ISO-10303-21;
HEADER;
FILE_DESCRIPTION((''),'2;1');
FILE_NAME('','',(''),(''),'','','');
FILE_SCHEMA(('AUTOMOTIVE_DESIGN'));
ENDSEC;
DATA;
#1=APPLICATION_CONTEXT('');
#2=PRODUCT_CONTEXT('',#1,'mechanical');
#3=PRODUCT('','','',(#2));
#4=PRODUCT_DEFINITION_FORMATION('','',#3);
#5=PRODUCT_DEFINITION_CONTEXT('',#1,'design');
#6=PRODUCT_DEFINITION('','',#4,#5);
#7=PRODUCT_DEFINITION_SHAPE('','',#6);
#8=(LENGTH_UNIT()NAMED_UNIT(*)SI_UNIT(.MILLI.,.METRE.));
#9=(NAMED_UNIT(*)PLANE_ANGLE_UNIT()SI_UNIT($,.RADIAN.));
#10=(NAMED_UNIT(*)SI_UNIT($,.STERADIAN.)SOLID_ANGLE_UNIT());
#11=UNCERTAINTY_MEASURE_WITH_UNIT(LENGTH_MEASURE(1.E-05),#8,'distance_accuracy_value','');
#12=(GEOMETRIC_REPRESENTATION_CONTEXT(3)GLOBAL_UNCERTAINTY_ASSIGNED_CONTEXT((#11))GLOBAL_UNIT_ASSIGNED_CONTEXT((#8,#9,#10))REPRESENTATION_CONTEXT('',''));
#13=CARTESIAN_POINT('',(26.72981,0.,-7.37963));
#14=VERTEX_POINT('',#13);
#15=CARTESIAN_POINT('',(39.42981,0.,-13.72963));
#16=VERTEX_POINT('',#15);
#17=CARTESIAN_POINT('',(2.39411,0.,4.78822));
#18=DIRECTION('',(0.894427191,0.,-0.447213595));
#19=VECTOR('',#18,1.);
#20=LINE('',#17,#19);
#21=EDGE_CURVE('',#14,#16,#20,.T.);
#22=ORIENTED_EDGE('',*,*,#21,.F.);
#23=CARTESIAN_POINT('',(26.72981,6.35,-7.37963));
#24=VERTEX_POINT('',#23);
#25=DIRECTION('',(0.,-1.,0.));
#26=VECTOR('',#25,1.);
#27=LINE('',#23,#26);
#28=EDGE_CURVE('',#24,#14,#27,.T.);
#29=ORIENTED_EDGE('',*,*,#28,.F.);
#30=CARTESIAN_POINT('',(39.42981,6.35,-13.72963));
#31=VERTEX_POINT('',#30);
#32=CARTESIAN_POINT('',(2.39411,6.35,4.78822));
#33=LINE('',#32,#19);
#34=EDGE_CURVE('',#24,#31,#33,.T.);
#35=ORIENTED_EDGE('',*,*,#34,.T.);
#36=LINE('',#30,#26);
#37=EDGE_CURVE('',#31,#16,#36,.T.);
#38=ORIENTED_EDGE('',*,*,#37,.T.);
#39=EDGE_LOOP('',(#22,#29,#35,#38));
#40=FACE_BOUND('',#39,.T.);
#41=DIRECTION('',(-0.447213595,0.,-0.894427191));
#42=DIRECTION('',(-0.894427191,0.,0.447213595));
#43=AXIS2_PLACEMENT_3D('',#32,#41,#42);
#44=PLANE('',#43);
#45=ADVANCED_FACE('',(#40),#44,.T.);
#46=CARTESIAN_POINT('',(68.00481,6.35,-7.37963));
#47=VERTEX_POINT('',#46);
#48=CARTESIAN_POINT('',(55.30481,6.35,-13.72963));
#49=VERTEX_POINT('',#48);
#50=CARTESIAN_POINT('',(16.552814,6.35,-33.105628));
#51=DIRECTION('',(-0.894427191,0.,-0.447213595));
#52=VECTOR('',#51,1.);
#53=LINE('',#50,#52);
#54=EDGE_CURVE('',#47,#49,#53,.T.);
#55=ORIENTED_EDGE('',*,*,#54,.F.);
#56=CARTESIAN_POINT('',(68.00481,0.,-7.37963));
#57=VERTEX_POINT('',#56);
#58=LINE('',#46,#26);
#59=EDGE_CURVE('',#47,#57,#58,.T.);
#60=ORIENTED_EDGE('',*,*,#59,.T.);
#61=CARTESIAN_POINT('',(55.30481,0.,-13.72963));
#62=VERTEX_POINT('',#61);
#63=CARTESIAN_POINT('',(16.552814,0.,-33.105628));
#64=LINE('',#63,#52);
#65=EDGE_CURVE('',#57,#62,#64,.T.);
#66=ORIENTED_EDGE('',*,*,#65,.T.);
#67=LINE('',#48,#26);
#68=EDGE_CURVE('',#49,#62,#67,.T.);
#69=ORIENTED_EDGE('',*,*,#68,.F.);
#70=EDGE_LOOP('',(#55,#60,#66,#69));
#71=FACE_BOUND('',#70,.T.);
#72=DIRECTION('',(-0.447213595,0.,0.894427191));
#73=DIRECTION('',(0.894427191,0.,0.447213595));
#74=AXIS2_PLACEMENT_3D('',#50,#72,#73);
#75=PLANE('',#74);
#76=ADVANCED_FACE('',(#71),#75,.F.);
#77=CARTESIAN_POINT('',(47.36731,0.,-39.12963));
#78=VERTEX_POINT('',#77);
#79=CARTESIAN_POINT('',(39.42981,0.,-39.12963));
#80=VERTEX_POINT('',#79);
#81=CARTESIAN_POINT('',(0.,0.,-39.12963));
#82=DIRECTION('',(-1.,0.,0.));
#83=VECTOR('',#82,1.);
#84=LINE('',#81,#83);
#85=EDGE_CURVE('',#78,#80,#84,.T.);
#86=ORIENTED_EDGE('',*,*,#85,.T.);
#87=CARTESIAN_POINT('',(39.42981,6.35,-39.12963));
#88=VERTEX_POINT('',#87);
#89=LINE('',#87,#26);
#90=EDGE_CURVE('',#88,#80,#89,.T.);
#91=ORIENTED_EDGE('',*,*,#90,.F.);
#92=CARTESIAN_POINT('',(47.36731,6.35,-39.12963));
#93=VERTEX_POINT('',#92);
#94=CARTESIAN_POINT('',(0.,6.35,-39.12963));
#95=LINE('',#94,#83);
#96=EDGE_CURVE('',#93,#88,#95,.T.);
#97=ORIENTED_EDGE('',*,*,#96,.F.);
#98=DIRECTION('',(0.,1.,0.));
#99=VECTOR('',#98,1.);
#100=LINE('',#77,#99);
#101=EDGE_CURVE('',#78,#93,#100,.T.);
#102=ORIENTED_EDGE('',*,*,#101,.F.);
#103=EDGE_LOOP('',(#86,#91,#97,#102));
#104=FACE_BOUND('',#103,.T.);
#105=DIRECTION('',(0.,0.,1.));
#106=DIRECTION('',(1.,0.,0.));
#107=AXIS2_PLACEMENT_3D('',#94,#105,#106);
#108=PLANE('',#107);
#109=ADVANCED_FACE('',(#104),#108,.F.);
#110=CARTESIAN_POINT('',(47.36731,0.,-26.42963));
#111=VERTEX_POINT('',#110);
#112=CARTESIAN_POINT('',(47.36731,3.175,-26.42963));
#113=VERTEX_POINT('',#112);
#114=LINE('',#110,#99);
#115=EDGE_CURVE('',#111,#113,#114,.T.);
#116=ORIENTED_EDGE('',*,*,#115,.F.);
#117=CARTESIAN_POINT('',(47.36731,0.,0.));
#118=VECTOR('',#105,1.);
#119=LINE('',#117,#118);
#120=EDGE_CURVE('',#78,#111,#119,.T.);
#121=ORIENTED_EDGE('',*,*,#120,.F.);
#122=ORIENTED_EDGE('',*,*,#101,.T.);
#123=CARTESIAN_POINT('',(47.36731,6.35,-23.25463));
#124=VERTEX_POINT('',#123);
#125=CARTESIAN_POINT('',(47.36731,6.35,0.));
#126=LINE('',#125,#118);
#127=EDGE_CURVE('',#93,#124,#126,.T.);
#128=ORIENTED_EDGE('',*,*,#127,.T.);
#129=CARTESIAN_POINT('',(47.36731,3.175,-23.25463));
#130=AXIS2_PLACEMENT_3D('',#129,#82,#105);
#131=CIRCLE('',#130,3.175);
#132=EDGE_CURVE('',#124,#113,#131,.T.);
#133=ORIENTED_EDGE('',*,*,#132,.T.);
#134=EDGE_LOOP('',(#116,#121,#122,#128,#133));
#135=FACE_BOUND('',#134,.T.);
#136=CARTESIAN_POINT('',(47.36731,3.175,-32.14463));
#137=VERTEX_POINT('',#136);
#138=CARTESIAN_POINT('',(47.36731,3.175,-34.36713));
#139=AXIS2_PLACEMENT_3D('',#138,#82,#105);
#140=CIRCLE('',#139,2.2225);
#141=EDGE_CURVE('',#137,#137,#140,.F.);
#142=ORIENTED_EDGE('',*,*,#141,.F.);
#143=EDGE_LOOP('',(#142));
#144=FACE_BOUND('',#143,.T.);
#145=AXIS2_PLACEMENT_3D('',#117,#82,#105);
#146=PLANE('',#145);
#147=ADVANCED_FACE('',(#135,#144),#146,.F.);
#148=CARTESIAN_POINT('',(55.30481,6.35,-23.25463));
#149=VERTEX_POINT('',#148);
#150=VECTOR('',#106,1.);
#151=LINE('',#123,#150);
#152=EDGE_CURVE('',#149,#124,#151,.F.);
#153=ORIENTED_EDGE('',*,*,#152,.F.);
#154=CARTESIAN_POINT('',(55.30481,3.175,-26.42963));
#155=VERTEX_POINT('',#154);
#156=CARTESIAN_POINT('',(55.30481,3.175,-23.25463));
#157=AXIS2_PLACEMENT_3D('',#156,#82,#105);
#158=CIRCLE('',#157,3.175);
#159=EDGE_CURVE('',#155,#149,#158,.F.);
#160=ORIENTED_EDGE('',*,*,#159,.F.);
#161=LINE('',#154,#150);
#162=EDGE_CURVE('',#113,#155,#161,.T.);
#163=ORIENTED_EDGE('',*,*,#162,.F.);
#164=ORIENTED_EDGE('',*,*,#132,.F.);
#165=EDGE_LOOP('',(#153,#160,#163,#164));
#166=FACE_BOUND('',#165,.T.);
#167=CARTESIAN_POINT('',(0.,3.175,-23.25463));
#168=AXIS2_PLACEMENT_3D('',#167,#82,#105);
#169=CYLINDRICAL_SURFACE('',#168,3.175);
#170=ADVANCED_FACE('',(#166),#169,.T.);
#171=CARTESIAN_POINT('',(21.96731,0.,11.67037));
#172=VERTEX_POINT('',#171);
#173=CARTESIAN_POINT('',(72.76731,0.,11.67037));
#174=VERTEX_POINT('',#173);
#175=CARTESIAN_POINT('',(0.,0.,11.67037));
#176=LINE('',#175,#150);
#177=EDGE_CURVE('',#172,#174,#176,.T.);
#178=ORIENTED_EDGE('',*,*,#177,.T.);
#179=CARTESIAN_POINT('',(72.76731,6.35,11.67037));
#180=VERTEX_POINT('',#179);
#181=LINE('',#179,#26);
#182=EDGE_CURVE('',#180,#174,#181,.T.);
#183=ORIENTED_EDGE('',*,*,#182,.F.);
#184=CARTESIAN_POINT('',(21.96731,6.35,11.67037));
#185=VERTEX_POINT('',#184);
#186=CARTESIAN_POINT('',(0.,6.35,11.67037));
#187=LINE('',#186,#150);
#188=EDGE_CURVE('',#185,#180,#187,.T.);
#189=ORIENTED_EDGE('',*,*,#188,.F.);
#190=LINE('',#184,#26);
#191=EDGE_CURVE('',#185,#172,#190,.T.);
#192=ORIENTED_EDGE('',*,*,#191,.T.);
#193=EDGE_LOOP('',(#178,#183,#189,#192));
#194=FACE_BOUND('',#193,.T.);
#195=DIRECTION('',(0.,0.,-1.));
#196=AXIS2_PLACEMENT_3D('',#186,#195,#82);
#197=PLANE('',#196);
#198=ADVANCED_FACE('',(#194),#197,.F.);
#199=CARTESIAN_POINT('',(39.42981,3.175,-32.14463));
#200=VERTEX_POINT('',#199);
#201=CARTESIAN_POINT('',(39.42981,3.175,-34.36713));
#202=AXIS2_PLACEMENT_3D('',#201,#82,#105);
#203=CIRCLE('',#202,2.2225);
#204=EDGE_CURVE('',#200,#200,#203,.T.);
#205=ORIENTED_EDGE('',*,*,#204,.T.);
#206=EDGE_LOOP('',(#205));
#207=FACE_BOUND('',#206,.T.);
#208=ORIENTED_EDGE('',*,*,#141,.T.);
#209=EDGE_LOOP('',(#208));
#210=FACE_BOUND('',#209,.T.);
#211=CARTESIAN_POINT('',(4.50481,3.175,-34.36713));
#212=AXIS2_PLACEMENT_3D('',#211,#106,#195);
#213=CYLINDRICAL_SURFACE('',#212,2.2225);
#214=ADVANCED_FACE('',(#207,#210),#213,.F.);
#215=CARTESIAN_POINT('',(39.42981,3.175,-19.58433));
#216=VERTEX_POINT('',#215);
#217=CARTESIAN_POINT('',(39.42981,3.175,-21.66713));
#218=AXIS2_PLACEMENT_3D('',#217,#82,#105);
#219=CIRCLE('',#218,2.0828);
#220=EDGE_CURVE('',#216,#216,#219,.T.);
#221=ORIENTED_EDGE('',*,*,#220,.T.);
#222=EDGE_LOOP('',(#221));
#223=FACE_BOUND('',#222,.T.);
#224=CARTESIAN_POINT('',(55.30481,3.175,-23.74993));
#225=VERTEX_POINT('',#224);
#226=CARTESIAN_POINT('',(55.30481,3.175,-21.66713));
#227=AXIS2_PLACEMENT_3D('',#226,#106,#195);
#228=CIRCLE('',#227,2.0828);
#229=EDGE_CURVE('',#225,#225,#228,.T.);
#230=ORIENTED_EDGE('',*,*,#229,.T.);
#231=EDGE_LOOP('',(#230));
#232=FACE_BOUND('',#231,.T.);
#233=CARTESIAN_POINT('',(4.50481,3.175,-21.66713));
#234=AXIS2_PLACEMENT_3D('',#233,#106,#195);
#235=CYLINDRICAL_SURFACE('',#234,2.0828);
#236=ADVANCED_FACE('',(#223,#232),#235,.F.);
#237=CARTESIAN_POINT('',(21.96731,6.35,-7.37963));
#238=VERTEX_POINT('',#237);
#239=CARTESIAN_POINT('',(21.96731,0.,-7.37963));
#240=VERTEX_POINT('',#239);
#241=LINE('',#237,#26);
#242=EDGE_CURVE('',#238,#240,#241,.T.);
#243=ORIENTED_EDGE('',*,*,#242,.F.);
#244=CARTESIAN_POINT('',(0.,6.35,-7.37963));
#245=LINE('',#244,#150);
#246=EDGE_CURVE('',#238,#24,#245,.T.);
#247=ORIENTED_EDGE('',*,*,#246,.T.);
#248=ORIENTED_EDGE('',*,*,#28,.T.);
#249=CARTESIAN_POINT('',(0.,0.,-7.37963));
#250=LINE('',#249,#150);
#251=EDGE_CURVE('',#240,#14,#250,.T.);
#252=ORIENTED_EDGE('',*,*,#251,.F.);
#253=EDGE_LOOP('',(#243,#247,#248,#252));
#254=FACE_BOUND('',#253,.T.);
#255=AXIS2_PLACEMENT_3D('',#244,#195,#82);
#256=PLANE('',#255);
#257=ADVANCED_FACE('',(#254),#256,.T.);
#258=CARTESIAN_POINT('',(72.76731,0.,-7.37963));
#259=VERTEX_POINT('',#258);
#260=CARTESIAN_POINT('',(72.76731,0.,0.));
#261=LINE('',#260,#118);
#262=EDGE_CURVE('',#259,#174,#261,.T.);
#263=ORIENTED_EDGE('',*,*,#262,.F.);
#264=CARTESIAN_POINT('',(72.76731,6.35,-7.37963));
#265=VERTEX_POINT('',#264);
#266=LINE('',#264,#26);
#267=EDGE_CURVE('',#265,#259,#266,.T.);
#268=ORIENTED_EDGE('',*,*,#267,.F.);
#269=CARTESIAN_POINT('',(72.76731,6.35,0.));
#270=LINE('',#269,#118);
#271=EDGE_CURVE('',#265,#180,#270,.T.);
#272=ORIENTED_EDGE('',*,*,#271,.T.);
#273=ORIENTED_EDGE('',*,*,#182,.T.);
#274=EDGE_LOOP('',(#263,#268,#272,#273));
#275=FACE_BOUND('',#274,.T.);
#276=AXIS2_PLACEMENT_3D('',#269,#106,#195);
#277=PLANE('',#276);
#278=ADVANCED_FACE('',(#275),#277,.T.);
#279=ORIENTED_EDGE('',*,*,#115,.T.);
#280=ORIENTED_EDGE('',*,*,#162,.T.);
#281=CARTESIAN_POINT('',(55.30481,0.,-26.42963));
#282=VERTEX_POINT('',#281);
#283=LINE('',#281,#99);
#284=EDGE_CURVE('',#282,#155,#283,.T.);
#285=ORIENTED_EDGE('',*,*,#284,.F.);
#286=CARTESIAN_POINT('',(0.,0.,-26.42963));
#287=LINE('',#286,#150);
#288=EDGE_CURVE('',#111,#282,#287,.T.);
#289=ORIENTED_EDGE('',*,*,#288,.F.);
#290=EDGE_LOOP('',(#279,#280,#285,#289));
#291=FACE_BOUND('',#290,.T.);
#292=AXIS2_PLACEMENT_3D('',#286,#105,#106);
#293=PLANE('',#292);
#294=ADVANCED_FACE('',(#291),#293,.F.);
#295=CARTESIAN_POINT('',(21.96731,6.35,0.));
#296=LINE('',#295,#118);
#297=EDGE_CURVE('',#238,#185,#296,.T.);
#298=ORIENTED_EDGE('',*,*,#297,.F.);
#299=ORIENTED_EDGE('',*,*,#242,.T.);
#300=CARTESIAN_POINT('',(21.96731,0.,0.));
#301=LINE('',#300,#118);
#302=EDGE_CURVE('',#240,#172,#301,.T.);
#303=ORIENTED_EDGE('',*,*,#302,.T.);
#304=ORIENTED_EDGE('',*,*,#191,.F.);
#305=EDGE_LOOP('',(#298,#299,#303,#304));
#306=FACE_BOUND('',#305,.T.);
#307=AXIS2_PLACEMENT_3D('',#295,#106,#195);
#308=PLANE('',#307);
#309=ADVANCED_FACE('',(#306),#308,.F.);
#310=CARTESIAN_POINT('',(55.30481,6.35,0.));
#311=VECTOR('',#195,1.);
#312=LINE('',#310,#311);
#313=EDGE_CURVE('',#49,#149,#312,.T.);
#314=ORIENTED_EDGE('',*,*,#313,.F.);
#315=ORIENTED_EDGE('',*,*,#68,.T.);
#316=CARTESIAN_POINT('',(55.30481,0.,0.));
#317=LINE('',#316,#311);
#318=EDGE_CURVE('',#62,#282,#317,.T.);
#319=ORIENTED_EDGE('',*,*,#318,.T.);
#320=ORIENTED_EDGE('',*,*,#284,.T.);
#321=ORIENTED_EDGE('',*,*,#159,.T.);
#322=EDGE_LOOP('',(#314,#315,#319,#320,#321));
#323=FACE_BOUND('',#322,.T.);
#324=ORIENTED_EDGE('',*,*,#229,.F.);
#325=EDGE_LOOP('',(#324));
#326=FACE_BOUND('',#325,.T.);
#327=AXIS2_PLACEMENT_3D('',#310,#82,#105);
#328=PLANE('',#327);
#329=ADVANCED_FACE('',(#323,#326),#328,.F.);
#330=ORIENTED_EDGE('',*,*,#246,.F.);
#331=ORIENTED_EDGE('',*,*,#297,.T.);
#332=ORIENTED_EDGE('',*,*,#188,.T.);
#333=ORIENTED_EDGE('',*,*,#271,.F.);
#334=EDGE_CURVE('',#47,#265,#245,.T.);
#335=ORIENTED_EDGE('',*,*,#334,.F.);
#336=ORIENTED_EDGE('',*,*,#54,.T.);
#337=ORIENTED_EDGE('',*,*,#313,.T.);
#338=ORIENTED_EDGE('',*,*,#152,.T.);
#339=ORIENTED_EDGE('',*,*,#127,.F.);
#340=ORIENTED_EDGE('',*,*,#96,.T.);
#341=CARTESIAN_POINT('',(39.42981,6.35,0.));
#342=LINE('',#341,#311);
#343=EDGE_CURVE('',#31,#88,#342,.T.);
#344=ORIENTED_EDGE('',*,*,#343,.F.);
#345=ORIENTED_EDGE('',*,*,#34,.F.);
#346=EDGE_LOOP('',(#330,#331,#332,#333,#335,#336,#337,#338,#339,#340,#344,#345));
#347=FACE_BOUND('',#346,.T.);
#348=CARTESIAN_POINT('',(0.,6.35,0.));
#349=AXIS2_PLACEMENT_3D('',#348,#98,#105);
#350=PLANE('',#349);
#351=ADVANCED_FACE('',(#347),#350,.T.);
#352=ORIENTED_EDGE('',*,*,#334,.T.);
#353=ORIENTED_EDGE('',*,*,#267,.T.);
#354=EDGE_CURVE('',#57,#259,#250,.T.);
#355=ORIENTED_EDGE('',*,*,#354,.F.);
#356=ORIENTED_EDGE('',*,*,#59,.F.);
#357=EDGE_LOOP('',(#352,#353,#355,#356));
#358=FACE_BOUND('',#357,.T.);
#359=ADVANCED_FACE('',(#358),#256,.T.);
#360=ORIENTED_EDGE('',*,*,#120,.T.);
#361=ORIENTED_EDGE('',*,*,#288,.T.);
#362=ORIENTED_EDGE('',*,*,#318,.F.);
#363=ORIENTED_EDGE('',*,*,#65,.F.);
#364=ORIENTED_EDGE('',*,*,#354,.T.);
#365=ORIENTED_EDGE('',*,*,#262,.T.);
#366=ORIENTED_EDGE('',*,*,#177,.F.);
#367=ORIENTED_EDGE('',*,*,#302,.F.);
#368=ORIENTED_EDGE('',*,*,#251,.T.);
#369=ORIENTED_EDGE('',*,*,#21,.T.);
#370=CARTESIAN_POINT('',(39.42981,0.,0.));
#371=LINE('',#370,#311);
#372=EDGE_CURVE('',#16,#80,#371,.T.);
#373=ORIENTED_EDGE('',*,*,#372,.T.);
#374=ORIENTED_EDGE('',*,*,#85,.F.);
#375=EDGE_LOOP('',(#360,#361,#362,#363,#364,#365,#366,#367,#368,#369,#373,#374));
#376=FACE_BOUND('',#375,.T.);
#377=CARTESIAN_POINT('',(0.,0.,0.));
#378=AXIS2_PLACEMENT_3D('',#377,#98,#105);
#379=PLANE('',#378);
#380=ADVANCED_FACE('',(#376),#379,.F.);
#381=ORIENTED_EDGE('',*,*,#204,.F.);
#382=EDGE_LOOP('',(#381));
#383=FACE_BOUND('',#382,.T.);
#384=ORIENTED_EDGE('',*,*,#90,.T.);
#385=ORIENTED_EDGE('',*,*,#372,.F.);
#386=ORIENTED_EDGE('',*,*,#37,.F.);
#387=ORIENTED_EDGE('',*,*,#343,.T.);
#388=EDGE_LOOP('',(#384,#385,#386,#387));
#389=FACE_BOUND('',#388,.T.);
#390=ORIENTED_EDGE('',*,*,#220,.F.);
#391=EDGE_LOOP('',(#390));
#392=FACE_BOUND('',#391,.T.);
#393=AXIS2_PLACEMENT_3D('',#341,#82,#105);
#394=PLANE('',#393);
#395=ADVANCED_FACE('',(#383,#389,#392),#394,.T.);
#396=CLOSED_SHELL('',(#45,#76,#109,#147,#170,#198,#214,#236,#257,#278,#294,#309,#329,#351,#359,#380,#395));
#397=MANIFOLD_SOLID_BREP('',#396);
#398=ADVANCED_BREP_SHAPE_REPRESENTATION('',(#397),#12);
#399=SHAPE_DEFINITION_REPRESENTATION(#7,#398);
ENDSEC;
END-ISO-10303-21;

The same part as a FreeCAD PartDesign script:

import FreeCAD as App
import Part
import Sketcher
Q = App.Units.Quantity


def edges_at(feature, points):
    """Names of the edges that pass closest to the given points."""
    edges = feature.Shape.Edges
    near = lambda p: min(range(len(edges)), key=lambda i: edges[i].distToShape(Part.Vertex(*p))[0])
    return sorted({f"Edge{near(p) + 1}" for p in points})


def add_polygon(sketch, points):
    """Adds a closed chain of lines whose ends are joined by coincident constraints."""
    first, n = sketch.GeometryCount, len(points)
    for a, b in zip(points, points[1:] + points[:1]):
        sketch.addGeometry(Part.LineSegment(App.Vector(*a, 0), App.Vector(*b, 0)), False)
    for i in range(n):
        sketch.addConstraint(Sketcher.Constraint("Coincident", first + i, 2, first + (i + 1) % n, 1))

doc = App.newDocument("Part")
params = doc.addObject("Spreadsheet::Sheet", "Params")
for row, (alias, value) in enumerate([
    ("sketch1_width", "2 in"),
    ("sketch1_height", "1 in"),
    ("sketch1_height2", "0.75 in"),
    ("sketch1_width2", "0.1875 in"),
    ("pad1_length", "0.25 in"),
    ("sketch2_diameter", "0.164 in"),
    ("sketch2_diameter2", "0.175 in"),
    ("pocket1_length", "2 in"),
    ("sketch3_height", "0.5 in"),
    ("sketch3_width", "0.3125 in"),
    ("pocket2_length", "0.25 in"),
    ("fillet_radius", "0.125 in"),
], start=1):
    params.set(f"A{row}", alias)
    params.set(f"B{row}", "=" + value)
    params.setAlias(f"B{row}", alias)

body = doc.addObject("PartDesign::Body", "Body")

# Sketch on XZ plane
sketch1 = doc.addObject("Sketcher::SketchObject", "Sketch")
body.addObject(sketch1)
sketch1.AttachmentSupport = (doc.XZ_Plane, [""])
sketch1.MapMode = "FlatFace"
add_polygon(sketch1, [(72.8, 11.7), (72.8, -7.4), (68, -7.4), (55.3, -13.7), (55.3, -39.1), (39.4, -39.1), (39.4, -13.7), (26.7, -7.4), (22, -7.4), (22, 11.7)])  # lines 0-9
sketch1.addConstraint(Sketcher.Constraint("Vertical", 0))
sketch1.addConstraint(Sketcher.Constraint("Horizontal", 1))
sketch1.addConstraint(Sketcher.Constraint("Vertical", 3))
sketch1.addConstraint(Sketcher.Constraint("Horizontal", 4))
sketch1.addConstraint(Sketcher.Constraint("Vertical", 5))
sketch1.addConstraint(Sketcher.Constraint("Horizontal", 7))
sketch1.addConstraint(Sketcher.Constraint("Vertical", 8))
sketch1.addConstraint(Sketcher.Constraint("Horizontal", 9))
sketch1.addConstraint(Sketcher.Constraint("Horizontal", 2, 2, 5, 2))
sketch1.addConstraint(Sketcher.Constraint("Horizontal", 1, 2, 6, 2))
sketch1.addConstraint(Sketcher.Constraint("Equal", 1, 7))
sketch1.addConstraint(Sketcher.Constraint("Equal", 2, 6))
sketch1.addConstraint(Sketcher.Constraint("DistanceX", 9, 1, 9, 2, Q("2 in")))
sketch1.addConstraint(Sketcher.Constraint("DistanceY", 3, 2, 3, 1, Q("1 in")))
sketch1.addConstraint(Sketcher.Constraint("DistanceY", 5, 2, 8, 2, Q("1 in")))
sketch1.addConstraint(Sketcher.Constraint("DistanceY", 0, 2, 0, 1, Q("0.75 in")))
sketch1.addConstraint(Sketcher.Constraint("DistanceX", 2, 2, 1, 2, Q("0.5 in")))
sketch1.addConstraint(Sketcher.Constraint("DistanceX", 1, 2, 1, 1, Q("0.1875 in")))
sketch1.addConstraint(Sketcher.Constraint("DistanceX", -1, 1, 0, 2, 72.76731))
sketch1.addConstraint(Sketcher.Constraint("DistanceY", 0, 2, -1, 1, 7.37963))
sketch1.setExpression("Constraints[22]", "Params.sketch1_width")
sketch1.setExpression("Constraints[23]", "Params.sketch1_height")
sketch1.setExpression("Constraints[25]", "Params.sketch1_height2")
sketch1.setExpression("Constraints[27]", "Params.sketch1_width2")
pad1 = doc.addObject("PartDesign::Pad", "Pad")
body.addObject(pad1)
pad1.Profile = sketch1
pad1.setExpression("Length", "Params.pad1_length")
pad1.Reversed = True

# Sketch on YZ plane
sketch2 = doc.addObject("Sketcher::SketchObject", "Sketch001")
body.addObject(sketch2)
sketch2.AttachmentSupport = (doc.YZ_Plane, [""])
sketch2.MapMode = "FlatFace"
sketch2.AttachmentOffset = App.Placement(App.Vector(0, 0, 55.30481), App.Rotation())
sketch2.addGeometry(Part.Circle(App.Vector(3.2, -21.7, 0), App.Vector(0, 0, 1), 2.1), False)
sketch2.addGeometry(Part.Circle(App.Vector(3.2, -34.4, 0), App.Vector(0, 0, 1), 2.2), False)
sketch2.addConstraint(Sketcher.Constraint("Vertical", 0, 3, 1, 3))
sketch2.addConstraint(Sketcher.Constraint("Diameter", 0, Q("0.164 in")))
sketch2.addConstraint(Sketcher.Constraint("Diameter", 1, Q("0.175 in")))
sketch2.addConstraint(Sketcher.Constraint("DistanceY", 1, 3, 0, 3, Q("0.5 in")))
sketch2.addConstraint(Sketcher.Constraint("DistanceX", -1, 1, 0, 3, Q("0.125 in")))
sketch2.addConstraint(Sketcher.Constraint("DistanceY", 0, 3, -1, 1, 21.66713))
sketch2.setExpression("Constraints[1]", "Params.sketch2_diameter")
sketch2.setExpression("Constraints[2]", "Params.sketch2_diameter2")
pocket1 = doc.addObject("PartDesign::Pocket", "Pocket")
body.addObject(pocket1)
pocket1.Profile = sketch2
pocket1.setExpression("Length", "Params.pocket1_length")

# Sketch on XZ plane
sketch3 = doc.addObject("Sketcher::SketchObject", "Sketch002")
body.addObject(sketch3)
sketch3.AttachmentSupport = (doc.XZ_Plane, [""])
sketch3.MapMode = "FlatFace"
sketch3.AttachmentOffset = App.Placement(App.Vector(0, 0, -0.25 * 25.4), App.Rotation())
add_polygon(sketch3, [(47, -39), (47, -26), (55, -26), (55, -39)])  # lines 0-3
sketch3.addConstraint(Sketcher.Constraint("Vertical", 0))
sketch3.addConstraint(Sketcher.Constraint("Horizontal", 1))
sketch3.addConstraint(Sketcher.Constraint("Vertical", 2))
sketch3.addConstraint(Sketcher.Constraint("Horizontal", 3))
sketch3.addConstraint(Sketcher.Constraint("DistanceY", 0, 1, 0, 2, Q("0.5 in")))
sketch3.addConstraint(Sketcher.Constraint("DistanceX", 1, 1, 1, 2, Q("0.3125 in")))
sketch3.addConstraint(Sketcher.Constraint("DistanceX", -1, 1, 0, 2, 47.36731))
sketch3.addConstraint(Sketcher.Constraint("DistanceY", 0, 2, -1, 1, 26.42963))
sketch3.setExpression("Constraints[8]", "Params.sketch3_height")
sketch3.setExpression("Constraints[9]", "Params.sketch3_width")
pocket2 = doc.addObject("PartDesign::Pocket", "Pocket001")
body.addObject(pocket2)
pocket2.Profile = sketch3
pocket2.setExpression("Length", "Params.pocket2_length")
pocket2.Reversed = True
doc.recompute()

fillet = doc.addObject("PartDesign::Fillet", "Fillet")
body.addObject(fillet)
fillet.Base = (pocket2, edges_at(pocket2, [(51.336, 6.35, -26.43)]))
fillet.setExpression("Radius", "Params.fillet_radius")

doc.recompute()
